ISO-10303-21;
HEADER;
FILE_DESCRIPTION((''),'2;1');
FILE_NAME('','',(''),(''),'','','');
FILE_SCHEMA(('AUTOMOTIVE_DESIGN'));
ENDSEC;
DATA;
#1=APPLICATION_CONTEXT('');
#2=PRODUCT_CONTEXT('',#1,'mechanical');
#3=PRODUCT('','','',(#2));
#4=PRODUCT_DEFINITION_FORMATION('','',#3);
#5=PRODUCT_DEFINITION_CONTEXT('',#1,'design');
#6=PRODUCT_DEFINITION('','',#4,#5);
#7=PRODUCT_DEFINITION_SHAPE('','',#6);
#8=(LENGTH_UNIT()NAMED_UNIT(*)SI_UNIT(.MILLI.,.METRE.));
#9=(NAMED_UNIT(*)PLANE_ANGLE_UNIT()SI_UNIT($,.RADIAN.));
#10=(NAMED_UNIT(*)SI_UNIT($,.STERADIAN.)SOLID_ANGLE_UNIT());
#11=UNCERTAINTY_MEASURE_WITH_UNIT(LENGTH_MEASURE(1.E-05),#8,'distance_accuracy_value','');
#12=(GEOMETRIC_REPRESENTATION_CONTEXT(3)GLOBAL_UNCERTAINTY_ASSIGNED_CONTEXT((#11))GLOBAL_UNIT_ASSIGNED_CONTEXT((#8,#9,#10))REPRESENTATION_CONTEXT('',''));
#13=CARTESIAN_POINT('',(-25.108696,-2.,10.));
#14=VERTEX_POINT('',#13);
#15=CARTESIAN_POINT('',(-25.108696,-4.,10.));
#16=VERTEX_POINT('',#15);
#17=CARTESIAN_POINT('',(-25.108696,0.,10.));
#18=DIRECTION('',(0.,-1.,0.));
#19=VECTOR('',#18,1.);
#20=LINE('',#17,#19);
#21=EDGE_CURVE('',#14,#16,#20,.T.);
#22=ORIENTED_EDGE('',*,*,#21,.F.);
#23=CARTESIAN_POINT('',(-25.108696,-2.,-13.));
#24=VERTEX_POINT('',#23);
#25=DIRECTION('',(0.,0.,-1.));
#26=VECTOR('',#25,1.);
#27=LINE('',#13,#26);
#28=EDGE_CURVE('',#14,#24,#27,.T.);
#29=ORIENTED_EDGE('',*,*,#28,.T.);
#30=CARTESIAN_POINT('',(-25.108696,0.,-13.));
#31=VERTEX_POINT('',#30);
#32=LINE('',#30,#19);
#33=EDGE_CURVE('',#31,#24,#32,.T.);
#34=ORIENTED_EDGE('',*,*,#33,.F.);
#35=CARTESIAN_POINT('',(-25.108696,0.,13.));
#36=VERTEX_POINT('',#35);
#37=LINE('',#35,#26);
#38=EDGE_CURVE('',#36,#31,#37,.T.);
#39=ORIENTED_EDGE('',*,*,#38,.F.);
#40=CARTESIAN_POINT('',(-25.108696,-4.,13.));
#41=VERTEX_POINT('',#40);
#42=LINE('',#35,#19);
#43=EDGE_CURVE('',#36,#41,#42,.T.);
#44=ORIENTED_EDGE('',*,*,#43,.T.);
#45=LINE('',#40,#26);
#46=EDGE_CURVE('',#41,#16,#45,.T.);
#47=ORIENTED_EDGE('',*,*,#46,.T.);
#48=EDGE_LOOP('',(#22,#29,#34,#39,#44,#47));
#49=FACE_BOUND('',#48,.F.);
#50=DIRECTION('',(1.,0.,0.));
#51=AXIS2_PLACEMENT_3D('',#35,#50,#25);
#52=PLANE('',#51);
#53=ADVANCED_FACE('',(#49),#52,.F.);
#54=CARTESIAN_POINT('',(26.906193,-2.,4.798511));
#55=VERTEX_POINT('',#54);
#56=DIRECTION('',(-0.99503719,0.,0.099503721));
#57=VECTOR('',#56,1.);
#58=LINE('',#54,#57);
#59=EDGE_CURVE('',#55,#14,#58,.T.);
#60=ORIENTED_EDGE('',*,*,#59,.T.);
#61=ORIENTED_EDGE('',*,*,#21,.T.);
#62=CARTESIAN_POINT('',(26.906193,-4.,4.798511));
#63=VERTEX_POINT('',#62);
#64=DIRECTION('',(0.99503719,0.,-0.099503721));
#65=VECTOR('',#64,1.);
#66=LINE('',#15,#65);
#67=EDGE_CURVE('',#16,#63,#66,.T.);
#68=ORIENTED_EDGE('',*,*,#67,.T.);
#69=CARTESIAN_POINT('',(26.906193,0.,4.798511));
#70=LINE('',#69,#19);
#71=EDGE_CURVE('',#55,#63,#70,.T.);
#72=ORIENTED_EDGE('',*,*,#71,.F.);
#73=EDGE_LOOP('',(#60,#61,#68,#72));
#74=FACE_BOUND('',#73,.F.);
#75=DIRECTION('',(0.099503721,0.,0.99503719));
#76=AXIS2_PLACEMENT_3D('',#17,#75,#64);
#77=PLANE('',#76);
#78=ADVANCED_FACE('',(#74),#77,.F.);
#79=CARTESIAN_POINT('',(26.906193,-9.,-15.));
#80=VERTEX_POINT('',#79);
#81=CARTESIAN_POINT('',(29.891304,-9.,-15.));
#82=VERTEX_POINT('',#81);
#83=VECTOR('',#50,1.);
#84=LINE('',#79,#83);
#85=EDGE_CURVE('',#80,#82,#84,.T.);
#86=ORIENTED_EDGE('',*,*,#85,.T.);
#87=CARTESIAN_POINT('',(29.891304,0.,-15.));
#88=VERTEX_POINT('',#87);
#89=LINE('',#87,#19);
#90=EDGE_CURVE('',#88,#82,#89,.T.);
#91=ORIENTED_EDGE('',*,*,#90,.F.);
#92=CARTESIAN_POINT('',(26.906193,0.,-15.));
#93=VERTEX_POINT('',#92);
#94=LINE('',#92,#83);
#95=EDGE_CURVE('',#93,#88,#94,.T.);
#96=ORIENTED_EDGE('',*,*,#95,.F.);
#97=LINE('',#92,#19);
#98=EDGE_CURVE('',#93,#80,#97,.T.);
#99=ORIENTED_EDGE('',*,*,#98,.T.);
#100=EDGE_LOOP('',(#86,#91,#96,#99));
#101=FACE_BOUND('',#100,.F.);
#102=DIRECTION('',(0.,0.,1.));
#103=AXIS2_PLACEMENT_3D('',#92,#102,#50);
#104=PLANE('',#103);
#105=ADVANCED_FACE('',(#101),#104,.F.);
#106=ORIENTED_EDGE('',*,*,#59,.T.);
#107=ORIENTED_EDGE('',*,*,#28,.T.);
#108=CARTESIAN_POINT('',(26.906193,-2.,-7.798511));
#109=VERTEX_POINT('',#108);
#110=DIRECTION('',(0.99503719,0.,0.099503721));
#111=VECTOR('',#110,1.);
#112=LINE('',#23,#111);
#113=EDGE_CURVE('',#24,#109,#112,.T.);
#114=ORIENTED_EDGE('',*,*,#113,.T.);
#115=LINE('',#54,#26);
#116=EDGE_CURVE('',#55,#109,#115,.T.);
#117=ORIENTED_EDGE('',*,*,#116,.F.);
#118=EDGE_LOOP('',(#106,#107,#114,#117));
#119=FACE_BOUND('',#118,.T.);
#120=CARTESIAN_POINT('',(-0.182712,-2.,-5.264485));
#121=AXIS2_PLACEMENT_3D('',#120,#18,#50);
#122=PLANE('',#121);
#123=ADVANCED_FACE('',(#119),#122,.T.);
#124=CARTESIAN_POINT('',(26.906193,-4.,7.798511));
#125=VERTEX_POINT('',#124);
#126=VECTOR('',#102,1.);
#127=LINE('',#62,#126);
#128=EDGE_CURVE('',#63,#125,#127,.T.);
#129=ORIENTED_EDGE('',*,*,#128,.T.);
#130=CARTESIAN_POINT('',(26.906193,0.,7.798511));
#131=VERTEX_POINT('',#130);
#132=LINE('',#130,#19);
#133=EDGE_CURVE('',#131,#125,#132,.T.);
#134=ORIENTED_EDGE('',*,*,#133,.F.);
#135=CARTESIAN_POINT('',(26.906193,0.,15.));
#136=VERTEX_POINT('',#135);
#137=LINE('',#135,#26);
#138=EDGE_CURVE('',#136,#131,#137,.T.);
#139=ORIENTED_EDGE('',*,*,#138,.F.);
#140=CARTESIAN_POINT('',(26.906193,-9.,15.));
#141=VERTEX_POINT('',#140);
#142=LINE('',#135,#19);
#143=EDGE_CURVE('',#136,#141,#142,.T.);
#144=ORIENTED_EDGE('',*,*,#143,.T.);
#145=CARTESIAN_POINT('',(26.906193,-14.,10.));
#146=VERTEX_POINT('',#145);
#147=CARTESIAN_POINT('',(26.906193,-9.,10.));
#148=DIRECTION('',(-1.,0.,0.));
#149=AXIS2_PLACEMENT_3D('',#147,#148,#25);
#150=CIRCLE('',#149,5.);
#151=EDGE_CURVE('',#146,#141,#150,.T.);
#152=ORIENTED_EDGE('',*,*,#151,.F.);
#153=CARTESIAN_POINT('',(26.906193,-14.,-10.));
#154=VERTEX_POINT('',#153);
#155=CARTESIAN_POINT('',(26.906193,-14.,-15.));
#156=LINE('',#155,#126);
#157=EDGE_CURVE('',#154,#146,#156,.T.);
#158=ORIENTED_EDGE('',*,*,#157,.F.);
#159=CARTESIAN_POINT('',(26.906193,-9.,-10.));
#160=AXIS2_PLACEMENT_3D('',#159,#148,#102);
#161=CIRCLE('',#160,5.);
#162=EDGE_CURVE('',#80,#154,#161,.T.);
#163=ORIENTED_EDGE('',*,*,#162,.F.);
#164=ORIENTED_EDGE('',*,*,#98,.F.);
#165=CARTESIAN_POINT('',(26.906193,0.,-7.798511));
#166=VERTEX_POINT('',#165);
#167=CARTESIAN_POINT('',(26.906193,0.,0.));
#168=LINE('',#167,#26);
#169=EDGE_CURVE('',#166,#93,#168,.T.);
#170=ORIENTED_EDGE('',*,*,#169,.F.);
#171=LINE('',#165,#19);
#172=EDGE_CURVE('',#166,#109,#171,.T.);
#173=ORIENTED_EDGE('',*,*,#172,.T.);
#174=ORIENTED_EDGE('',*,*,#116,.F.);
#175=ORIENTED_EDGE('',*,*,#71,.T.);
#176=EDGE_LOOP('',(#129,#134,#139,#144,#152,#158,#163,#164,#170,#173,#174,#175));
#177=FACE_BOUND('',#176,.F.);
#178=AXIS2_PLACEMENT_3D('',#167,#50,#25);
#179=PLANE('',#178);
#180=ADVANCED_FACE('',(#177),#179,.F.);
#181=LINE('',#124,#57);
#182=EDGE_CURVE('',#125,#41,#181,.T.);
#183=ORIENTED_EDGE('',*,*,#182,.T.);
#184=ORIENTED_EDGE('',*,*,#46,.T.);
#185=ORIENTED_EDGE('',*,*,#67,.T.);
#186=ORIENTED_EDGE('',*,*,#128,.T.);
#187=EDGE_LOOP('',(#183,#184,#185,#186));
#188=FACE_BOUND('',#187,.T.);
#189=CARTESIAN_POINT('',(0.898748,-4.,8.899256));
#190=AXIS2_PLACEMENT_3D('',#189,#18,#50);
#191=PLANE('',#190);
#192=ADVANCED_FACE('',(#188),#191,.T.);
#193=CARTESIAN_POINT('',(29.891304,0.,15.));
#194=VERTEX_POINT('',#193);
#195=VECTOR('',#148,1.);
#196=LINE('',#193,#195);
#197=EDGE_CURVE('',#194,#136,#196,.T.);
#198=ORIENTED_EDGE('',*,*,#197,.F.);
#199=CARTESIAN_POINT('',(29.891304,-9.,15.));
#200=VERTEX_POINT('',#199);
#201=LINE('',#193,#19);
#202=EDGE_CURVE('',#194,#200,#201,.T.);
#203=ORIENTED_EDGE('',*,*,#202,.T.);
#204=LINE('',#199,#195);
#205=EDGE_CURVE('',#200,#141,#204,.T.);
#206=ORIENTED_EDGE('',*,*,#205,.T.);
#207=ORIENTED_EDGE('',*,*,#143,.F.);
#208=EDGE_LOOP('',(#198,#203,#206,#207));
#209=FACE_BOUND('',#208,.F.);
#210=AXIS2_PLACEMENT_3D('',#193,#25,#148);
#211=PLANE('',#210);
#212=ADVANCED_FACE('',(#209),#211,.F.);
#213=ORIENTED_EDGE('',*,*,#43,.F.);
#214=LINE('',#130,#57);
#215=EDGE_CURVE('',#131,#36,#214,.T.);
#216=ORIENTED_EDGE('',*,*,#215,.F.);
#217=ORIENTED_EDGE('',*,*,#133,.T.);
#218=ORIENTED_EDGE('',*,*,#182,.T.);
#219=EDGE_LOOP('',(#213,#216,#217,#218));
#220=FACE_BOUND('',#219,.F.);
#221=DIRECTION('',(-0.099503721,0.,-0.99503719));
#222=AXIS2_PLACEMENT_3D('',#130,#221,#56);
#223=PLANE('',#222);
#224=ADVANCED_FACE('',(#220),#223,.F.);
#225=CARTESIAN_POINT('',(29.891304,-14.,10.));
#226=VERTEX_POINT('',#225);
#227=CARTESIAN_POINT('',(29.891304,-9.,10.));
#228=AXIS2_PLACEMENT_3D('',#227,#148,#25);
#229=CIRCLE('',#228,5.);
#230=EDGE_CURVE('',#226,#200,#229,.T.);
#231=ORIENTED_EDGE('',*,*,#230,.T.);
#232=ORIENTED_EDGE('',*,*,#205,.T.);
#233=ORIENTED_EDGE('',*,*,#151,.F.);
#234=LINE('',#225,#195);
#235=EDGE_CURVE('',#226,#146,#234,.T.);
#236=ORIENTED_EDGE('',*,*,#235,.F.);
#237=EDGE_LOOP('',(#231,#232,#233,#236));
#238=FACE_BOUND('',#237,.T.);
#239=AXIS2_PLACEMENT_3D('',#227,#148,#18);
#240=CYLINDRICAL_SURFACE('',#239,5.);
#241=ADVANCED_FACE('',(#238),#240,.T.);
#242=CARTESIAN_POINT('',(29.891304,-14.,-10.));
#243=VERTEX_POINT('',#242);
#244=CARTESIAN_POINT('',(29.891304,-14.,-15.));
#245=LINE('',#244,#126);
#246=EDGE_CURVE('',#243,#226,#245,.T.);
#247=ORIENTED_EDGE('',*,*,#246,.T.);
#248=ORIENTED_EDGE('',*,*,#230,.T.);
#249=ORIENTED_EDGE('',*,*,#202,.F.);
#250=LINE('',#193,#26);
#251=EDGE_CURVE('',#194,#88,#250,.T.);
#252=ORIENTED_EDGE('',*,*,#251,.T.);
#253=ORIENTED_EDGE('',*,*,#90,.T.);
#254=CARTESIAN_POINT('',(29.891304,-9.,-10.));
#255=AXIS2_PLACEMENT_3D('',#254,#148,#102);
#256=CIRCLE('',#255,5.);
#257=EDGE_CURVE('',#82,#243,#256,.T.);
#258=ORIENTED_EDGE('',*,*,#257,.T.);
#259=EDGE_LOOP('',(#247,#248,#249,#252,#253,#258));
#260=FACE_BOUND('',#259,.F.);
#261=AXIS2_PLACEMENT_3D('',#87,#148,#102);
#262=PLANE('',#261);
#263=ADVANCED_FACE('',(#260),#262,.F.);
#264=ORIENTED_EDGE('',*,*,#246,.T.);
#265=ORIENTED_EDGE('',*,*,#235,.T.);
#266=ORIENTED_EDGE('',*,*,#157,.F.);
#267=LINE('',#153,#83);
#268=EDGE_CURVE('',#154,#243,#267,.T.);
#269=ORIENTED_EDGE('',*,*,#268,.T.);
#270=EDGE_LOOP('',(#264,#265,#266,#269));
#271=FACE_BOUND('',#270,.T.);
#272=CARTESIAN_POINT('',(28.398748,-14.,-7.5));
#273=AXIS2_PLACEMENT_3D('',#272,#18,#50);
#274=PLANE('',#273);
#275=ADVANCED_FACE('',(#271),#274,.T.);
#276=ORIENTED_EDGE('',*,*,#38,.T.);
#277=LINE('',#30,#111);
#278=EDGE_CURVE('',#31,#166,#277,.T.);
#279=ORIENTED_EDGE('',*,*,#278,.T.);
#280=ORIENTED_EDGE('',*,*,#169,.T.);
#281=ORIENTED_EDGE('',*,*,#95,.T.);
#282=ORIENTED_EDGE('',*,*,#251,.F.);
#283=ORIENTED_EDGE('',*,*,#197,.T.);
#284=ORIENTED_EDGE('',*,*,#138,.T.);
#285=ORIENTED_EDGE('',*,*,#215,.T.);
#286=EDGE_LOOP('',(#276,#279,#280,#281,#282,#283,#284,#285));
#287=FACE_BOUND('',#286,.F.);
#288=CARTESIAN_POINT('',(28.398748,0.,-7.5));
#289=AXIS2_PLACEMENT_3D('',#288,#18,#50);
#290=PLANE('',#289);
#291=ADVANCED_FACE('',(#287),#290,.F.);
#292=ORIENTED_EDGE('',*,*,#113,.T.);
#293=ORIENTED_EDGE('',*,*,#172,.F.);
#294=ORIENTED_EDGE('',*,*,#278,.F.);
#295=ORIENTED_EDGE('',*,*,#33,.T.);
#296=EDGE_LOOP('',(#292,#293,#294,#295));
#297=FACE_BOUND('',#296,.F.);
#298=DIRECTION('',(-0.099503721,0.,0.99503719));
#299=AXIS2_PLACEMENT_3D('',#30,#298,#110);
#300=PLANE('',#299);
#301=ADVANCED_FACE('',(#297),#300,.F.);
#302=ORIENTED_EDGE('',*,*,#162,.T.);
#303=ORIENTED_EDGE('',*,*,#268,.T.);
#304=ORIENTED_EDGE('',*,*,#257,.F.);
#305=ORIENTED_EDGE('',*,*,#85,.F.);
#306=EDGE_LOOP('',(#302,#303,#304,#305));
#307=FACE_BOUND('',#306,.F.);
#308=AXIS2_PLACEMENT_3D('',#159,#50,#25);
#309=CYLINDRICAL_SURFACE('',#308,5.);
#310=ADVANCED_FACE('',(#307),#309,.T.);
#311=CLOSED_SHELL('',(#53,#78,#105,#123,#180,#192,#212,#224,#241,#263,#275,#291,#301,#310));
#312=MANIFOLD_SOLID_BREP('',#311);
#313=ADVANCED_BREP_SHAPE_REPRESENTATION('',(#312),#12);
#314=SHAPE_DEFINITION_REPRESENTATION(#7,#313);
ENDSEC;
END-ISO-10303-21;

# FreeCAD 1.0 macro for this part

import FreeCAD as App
import Part
import Sketcher

V = App.Vector


def edges_at(feature, points):
    """Names of the edges that pass closest to the given points."""
    edges = feature.Shape.Edges
    near = lambda p: min(range(len(edges)), key=lambda i: edges[i].distToShape(Part.Vertex(*p))[0])
    return sorted({f"Edge{near(p) + 1}" for p in points})

doc = App.newDocument("Part")
body = doc.addObject("PartDesign::Body", "Body")

# Sketch on XZ plane
sketch1 = body.newObject("Sketcher::SketchObject", "Sketch")
sketch1.AttachmentSupport = (doc.getObject("XZ_Plane"), [""])
sketch1.MapMode = "FlatFace"
sketch1.addGeometry([
    Part.LineSegment(V(-25, -13, 0), V(27, -8, 0)),
    Part.LineSegment(V(27, -8, 0), V(27, 5, 0)),
    Part.LineSegment(V(27, 5, 0), V(-25, 10, 0)),
    Part.LineSegment(V(-25, 10, 0), V(-25, -13, 0)),
], False)
sketch1.addConstraint([
    Sketcher.Constraint("Coincident", 0, 2, 1, 1),
    Sketcher.Constraint("Coincident", 1, 2, 2, 1),
    Sketcher.Constraint("Coincident", 2, 2, 3, 1),
    Sketcher.Constraint("Coincident", 3, 2, 0, 1),
    Sketcher.Constraint("Vertical", 1),
    Sketcher.Constraint("Vertical", 3),
    Sketcher.Constraint("Equal", 0, 2),
    Sketcher.Constraint("DistanceY", 3, 2, 3, 1, 23.0),
    Sketcher.Constraint("DistanceY", -1, 1, 2, 2, 10.0),
    Sketcher.Constraint("DistanceY", 1, 1, 1, 2, 12.597022),
    Sketcher.Constraint("DistanceX", 2, 2, 1, 2, 52.014889),
    Sketcher.Constraint("DistanceX", -1, 1, 0, 2, 26.906193),
])
pad1 = body.newObject("PartDesign::Pad", "Pad")
pad1.Profile = sketch1
pad1.Length = 2

# Sketch on XZ plane
sketch2 = body.newObject("Sketcher::SketchObject", "Sketch001")
sketch2.AttachmentSupport = (doc.getObject("XZ_Plane"), [""])
sketch2.MapMode = "FlatFace"
sketch2.addGeometry([
    Part.LineSegment(V(26.9, 0, 0), V(29.9, 0, 0)),
    Part.LineSegment(V(29.9, 0, 0), V(29.9, 15, 0)),
    Part.LineSegment(V(29.9, 15, 0), V(26.9, 15, 0)),
    Part.LineSegment(V(26.9, 15, 0), V(26.9, 0, 0)),
], False)
sketch2.addConstraint([
    Sketcher.Constraint("Coincident", 0, 2, 1, 1),
    Sketcher.Constraint("Coincident", 1, 2, 2, 1),
    Sketcher.Constraint("Coincident", 2, 2, 3, 1),
    Sketcher.Constraint("Coincident", 3, 2, 0, 1),
    Sketcher.Constraint("Horizontal", 0),
    Sketcher.Constraint("Vertical", 1),
    Sketcher.Constraint("Horizontal", 2),
    Sketcher.Constraint("Vertical", 3),
    Sketcher.Constraint("PointOnObject", 0, 2, -1),
    Sketcher.Constraint("DistanceY", 1, 1, 1, 2, 15.0),
    Sketcher.Constraint("DistanceX", 0, 1, 0, 2, 2.985111),
    Sketcher.Constraint("DistanceX", -1, 1, 0, 2, 29.891304),
])
pad2 = body.newObject("PartDesign::Pad", "Pad001")
pad2.Profile = sketch2
pad2.Length = 14

# Sketch on XZ plane
sketch3 = body.newObject("Sketcher::SketchObject", "Sketch002")
sketch3.AttachmentSupport = (doc.getObject("XZ_Plane"), [""])
sketch3.MapMode = "FlatFace"
sketch3.addGeometry([
    Part.LineSegment(V(-25.1, 13, 0), V(-25.1, 10, 0)),
    Part.LineSegment(V(-25.1, 10, 0), V(26.9, 4.8, 0)),
    Part.LineSegment(V(26.9, 4.8, 0), V(26.9, 7.8, 0)),
    Part.LineSegment(V(26.9, 7.8, 0), V(-25.1, 13, 0)),
], False)
sketch3.addConstraint([
    Sketcher.Constraint("Coincident", 0, 2, 1, 1),
    Sketcher.Constraint("Coincident", 1, 2, 2, 1),
    Sketcher.Constraint("Coincident", 2, 2, 3, 1),
    Sketcher.Constraint("Coincident", 3, 2, 0, 1),
    Sketcher.Constraint("Vertical", 0),
    Sketcher.Constraint("Vertical", 2),
    Sketcher.Constraint("Parallel", 1, 3),
    Sketcher.Constraint("DistanceY", 0, 2, 0, 1, 3.0),
    Sketcher.Constraint("DistanceY", -1, 1, 0, 2, 10.0),
    Sketcher.Constraint("DistanceY", -1, 1, 1, 2, 4.798511),
    Sketcher.Constraint("DistanceX", 0, 2, 1, 2, 52.014889),
    Sketcher.Constraint("DistanceX", 0, 2, -1, 1, 25.108696),
])
pad3 = body.newObject("PartDesign::Pad", "Pad002")
pad3.Profile = sketch3
pad3.Length = 4

# Sketch on XZ plane
sketch4 = body.newObject("Sketcher::SketchObject", "Sketch003")
sketch4.AttachmentSupport = (doc.getObject("XZ_Plane"), [""])
sketch4.MapMode = "FlatFace"
sketch4.addGeometry([
    Part.LineSegment(V(29.9, 0, 0), V(26.9, 0, 0)),
    Part.LineSegment(V(26.9, 0, 0), V(26.9, -15, 0)),
    Part.LineSegment(V(26.9, -15, 0), V(29.9, -15, 0)),
    Part.LineSegment(V(29.9, -15, 0), V(29.9, 0, 0)),
], False)
sketch4.addConstraint([
    Sketcher.Constraint("Coincident", 0, 2, 1, 1),
    Sketcher.Constraint("Coincident", 1, 2, 2, 1),
    Sketcher.Constraint("Coincident", 2, 2, 3, 1),
    Sketcher.Constraint("Coincident", 3, 2, 0, 1),
    Sketcher.Constraint("Horizontal", 0),
    Sketcher.Constraint("Vertical", 1),
    Sketcher.Constraint("Horizontal", 2),
    Sketcher.Constraint("Vertical", 3),
    Sketcher.Constraint("PointOnObject", 0, 2, -1),
    Sketcher.Constraint("DistanceY", 1, 2, 1, 1, 15.0),
    Sketcher.Constraint("DistanceX", 0, 2, 0, 1, 2.985111),
    Sketcher.Constraint("DistanceX", -1, 1, 0, 2, 26.906193),
])
pad4 = body.newObject("PartDesign::Pad", "Pad003")
pad4.Profile = sketch4
pad4.Length = 14
doc.recompute()

fillet = body.newObject("PartDesign::Fillet", "Fillet")
fillet.Base = (pad4, edges_at(pad4, [(28.399, -14, -15), (28.399, -14, 15)]))
fillet.Radius = 5

doc.recompute()
